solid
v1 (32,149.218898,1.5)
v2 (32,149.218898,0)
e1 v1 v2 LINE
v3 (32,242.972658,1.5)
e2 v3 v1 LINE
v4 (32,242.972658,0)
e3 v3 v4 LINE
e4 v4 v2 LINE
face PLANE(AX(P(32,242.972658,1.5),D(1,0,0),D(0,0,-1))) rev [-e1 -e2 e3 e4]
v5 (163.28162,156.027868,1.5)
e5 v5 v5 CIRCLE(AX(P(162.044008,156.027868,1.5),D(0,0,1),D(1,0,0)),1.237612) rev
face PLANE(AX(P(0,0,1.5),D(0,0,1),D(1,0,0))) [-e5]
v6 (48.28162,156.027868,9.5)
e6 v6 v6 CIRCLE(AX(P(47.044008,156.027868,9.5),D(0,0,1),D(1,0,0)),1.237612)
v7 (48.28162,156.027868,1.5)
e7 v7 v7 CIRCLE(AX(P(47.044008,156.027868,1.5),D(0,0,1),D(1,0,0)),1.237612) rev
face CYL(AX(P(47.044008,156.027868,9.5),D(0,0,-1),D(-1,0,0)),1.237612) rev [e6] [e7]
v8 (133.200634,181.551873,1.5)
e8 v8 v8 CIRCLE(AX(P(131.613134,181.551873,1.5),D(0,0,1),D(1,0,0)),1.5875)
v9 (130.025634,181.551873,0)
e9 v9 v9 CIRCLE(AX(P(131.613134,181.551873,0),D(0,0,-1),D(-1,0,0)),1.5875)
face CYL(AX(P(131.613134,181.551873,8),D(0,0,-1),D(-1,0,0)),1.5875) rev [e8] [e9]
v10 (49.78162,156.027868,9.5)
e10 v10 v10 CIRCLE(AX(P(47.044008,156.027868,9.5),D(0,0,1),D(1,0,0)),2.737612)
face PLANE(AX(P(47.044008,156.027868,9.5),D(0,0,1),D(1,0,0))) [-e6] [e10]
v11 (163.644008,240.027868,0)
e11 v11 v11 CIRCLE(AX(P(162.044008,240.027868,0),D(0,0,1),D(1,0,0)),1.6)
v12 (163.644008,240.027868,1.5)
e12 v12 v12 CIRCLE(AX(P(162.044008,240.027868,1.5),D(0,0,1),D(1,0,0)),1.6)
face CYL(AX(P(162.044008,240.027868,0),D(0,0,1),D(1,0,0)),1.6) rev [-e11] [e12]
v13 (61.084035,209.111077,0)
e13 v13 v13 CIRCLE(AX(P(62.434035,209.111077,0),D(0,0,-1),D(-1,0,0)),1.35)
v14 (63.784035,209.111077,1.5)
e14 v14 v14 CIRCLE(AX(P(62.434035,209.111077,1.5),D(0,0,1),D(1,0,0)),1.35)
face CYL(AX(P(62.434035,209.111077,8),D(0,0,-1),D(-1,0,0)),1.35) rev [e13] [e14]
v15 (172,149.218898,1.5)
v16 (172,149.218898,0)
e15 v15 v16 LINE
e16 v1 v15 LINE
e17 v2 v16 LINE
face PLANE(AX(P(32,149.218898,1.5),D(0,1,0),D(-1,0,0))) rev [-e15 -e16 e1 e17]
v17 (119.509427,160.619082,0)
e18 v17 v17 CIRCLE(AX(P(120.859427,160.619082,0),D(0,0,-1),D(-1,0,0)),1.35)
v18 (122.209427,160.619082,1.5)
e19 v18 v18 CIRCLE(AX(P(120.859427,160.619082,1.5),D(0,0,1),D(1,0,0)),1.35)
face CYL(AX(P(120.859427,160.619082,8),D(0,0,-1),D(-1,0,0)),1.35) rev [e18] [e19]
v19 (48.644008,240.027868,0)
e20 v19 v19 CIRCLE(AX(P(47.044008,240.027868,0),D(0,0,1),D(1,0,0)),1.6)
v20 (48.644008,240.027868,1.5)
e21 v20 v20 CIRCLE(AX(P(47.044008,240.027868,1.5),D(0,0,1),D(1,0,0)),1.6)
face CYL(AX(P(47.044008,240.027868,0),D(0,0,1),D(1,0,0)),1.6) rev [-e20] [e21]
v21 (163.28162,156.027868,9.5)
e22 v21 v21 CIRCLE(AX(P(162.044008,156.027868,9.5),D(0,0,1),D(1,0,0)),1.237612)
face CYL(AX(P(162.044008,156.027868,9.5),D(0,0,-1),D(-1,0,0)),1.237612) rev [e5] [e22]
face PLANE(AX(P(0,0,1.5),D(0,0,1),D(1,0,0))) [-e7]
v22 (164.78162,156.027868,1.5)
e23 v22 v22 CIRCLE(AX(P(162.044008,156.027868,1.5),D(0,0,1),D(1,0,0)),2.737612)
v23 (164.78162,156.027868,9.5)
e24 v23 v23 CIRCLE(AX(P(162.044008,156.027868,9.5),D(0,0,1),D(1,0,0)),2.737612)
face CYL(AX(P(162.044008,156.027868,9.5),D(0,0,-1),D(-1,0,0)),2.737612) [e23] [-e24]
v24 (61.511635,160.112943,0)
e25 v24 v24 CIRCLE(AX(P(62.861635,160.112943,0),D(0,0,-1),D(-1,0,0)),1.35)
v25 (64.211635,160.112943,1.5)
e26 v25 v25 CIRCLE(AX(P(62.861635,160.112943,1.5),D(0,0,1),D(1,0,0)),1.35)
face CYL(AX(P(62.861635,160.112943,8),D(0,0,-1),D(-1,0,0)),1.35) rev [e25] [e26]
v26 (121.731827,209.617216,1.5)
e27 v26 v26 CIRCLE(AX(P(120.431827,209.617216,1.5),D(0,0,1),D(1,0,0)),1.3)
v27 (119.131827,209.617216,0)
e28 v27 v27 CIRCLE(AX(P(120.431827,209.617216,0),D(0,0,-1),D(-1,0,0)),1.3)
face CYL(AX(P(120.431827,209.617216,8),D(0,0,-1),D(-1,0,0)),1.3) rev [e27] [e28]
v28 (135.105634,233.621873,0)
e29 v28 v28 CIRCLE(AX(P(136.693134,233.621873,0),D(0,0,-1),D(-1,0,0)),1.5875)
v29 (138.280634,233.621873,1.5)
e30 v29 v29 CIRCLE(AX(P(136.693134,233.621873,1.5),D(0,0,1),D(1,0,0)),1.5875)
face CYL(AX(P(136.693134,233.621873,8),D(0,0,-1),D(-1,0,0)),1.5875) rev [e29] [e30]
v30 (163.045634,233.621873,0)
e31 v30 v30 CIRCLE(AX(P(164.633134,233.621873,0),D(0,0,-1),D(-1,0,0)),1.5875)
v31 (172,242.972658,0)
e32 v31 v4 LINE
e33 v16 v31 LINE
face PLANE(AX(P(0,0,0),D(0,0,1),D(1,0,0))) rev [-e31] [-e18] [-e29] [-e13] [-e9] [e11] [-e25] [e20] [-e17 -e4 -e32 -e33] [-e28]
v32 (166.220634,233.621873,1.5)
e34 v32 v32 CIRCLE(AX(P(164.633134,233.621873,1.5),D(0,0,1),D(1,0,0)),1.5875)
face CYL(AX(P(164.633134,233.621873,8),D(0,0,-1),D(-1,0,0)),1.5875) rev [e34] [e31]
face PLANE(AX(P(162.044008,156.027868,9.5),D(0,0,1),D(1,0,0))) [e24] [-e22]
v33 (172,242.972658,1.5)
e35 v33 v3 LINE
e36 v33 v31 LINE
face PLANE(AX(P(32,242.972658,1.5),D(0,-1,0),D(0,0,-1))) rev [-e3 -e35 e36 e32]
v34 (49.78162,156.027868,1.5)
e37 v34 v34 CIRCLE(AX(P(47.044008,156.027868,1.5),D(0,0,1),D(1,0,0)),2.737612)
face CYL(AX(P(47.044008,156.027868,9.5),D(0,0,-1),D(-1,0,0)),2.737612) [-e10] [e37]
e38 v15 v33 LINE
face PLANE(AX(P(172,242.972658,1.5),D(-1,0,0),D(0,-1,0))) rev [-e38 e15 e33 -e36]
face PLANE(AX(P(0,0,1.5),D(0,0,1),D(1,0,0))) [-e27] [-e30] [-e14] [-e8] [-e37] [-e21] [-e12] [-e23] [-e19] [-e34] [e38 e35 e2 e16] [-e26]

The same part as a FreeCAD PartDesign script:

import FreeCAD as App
import Part
import Sketcher

V = App.Vector
Q = App.Units.Quantity

doc = App.newDocument("Part")
body = doc.addObject("PartDesign::Body", "Body")

sketch1 = body.newObject("Sketcher::SketchObject", "Sketch")
sketch1.AttachmentSupport = (doc.getObject("XY_Plane"), [""])
sketch1.MapMode = "FlatFace"
sketch1.addGeometry([
    Part.LineSegment(V(32, 242.972658, 0), V(32, 149.218898, 0)),
    Part.LineSegment(V(32, 149.218898, 0), V(172, 149.218898, 0)),
    Part.LineSegment(V(172, 149.218898, 0), V(172, 242.972658, 0)),
    Part.LineSegment(V(172, 242.972658, 0), V(32, 242.972658, 0)),
], False)
sketch1.addConstraint([
    Sketcher.Constraint("Coincident", 0, 2, 1, 1),
    Sketcher.Constraint("Coincident", 1, 2, 2, 1),
    Sketcher.Constraint("Coincident", 2, 2, 3, 1),
    Sketcher.Constraint("Coincident", 3, 2, 0, 1),
    Sketcher.Constraint("Vertical", 0),
    Sketcher.Constraint("Horizontal", 1),
    Sketcher.Constraint("Vertical", 2),
    Sketcher.Constraint("Horizontal", 3),
    Sketcher.Constraint("DistanceX", 1, 1, 1, 2, Q("140 mm")),
    Sketcher.Constraint("DistanceX", -1, 1, 0, 2, Q("32 mm")),
    Sketcher.Constraint("DistanceY", 0, 2, 0, 1, Q("93.75376 mm")),
    Sketcher.Constraint("DistanceY", -1, 1, 0, 2, Q("149.218898 mm")),
])
pad1 = body.newObject("PartDesign::Pad", "Pad")
pad1.Profile = sketch1
pad1.Length = 1.5

sketch2 = body.newObject("Sketcher::SketchObject", "Sketch001")
sketch2.AttachmentSupport = (doc.getObject("XY_Plane"), [""])
sketch2.MapMode = "FlatFace"
sketch2.AttachmentOffset = App.Placement(V(0, 0, 1.5), App.Rotation())
sketch2.addGeometry([
    Part.Circle(V(47.044008, 240.027868, 0), V(0, 0, 1), 1.6),
    Part.Circle(V(162.044008, 240.027868, 0), V(0, 0, 1), 1.6),
], False)
sketch2.addConstraint([
    Sketcher.Constraint("Equal", 0, 1),
    Sketcher.Constraint("Horizontal", 0, 3, 1, 3),
    Sketcher.Constraint("Diameter", 0, Q("3.2 mm")),
    Sketcher.Constraint("DistanceX", 0, 3, 1, 3, Q("115 mm")),
    Sketcher.Constraint("DistanceY", -1, 1, 0, 3, Q("240.027868 mm")),
    Sketcher.Constraint("DistanceX", -1, 1, 0, 3, Q("47.044008 mm")),
])
pocket1 = body.newObject("PartDesign::Pocket", "Pocket")
pocket1.Profile = sketch2
pocket1.Length = 1.5

sketch3 = body.newObject("Sketcher::SketchObject", "Sketch002")
sketch3.AttachmentSupport = (doc.getObject("XY_Plane"), [""])
sketch3.MapMode = "FlatFace"
sketch3.AttachmentOffset = App.Placement(V(0, 0, 1.5), App.Rotation())
sketch3.addGeometry([
    Part.Circle(V(47.044008, 156.027868, 0), V(0, 0, 1), 2.737612),
    Part.Circle(V(47.044008, 156.027868, 0), V(0, 0, 1), 1.237612),
    Part.Circle(V(162.044008, 156.027868, 0), V(0, 0, 1), 2.737612),
    Part.Circle(V(162.044008, 156.027868, 0), V(0, 0, 1), 1.237612),
], False)
sketch3.addConstraint([
    Sketcher.Constraint("Coincident", 1, 3, 0, 3),
    Sketcher.Constraint("Coincident", 3, 3, 2, 3),
    Sketcher.Constraint("Equal", 0, 2),
    Sketcher.Constraint("Equal", 1, 3),
    Sketcher.Constraint("Horizontal", 1, 3, 2, 3),
    Sketcher.Constraint("DistanceX", 0, 3, 2, 3, Q("115 mm")),
    Sketcher.Constraint("Diameter", 0, Q("5.475224 mm")),
    Sketcher.Constraint("Diameter", 1, Q("2.475224 mm")),
    Sketcher.Constraint("DistanceY", -1, 1, 0, 3, Q("156.027868 mm")),
    Sketcher.Constraint("DistanceX", -1, 1, 0, 3, Q("47.044008 mm")),
])
pad2 = body.newObject("PartDesign::Pad", "Pad001")
pad2.Profile = sketch3
pad2.Length = 8

sketch4 = body.newObject("Sketcher::SketchObject", "Sketch003")
sketch4.AttachmentSupport = (doc.getObject("XY_Plane"), [""])
sketch4.MapMode = "FlatFace"
sketch4.addGeometry([
    Part.Circle(V(120.431827, 209.617216, 0), V(0, 0, 1), 1.3),
    Part.Circle(V(62.434035, 209.111077, 0), V(0, 0, 1), 1.35),
    Part.Circle(V(62.861635, 160.112943, 0), V(0, 0, 1), 1.35),
    Part.Circle(V(120.859427, 160.619082, 0), V(0, 0, 1), 1.35),
    Part.Circle(V(131.613134, 181.551873, 0), V(0, 0, 1), 1.5875),
    Part.Circle(V(136.693134, 233.621873, 0), V(0, 0, 1), 1.5875),
    Part.Circle(V(164.633134, 233.621873, 0), V(0, 0, 1), 1.5875),
], False)
sketch4.addConstraint([
    Sketcher.Constraint("Equal", 1, 2),
    Sketcher.Constraint("Equal", 2, 3),
    Sketcher.Constraint("Equal", 4, 5),
    Sketcher.Constraint("Equal", 5, 6),
    Sketcher.Constraint("Horizontal", 5, 3, 6, 3),
    Sketcher.Constraint("Diameter", 0, Q("2.6 mm")),
    Sketcher.Constraint("Diameter", 1, Q("2.7 mm")),
    Sketcher.Constraint("Diameter", 4, Q("3.175 mm")),
    Sketcher.Constraint("DistanceX", 4, 3, 5, 3, Q("5.08 mm")),
    Sketcher.Constraint("DistanceY", 4, 3, 5, 3, Q("52.07 mm")),
    Sketcher.Constraint("DistanceX", 5, 3, 6, 3, Q("27.94 mm")),
    Sketcher.Constraint("DistanceX", 1, 3, 2, 3, Q("0.4276 mm")),
    Sketcher.Constraint("DistanceX", 0, 3, 3, 3, Q("0.4276 mm")),
    Sketcher.Constraint("DistanceX", 2, 3, 4, 3, Q("68.751499 mm")),
    Sketcher.Constraint("DistanceX", 1, 3, 0, 3, Q("57.997792 mm")),
    Sketcher.Constraint("DistanceY", 1, 3, 0, 3, Q("0.506139 mm")),
    Sketcher.Constraint("DistanceY", 2, 3, 3, 3, Q("0.506139 mm")),
    Sketcher.Constraint("DistanceY", 3, 3, 4, 3, Q("20.93279 mm")),
    Sketcher.Constraint("DistanceX", -1, 1, 0, 3, Q("120.431827 mm")),
    Sketcher.Constraint("DistanceY", -1, 1, 0, 3, Q("209.617216 mm")),
    Sketcher.Constraint("DistanceY", -1, 1, 2, 3, Q("160.112943 mm")),
])
pocket2 = body.newObject("PartDesign::Pocket", "Pocket001")
pocket2.Profile = sketch4
pocket2.Length = 8
pocket2.Reversed = True

doc.recompute()
